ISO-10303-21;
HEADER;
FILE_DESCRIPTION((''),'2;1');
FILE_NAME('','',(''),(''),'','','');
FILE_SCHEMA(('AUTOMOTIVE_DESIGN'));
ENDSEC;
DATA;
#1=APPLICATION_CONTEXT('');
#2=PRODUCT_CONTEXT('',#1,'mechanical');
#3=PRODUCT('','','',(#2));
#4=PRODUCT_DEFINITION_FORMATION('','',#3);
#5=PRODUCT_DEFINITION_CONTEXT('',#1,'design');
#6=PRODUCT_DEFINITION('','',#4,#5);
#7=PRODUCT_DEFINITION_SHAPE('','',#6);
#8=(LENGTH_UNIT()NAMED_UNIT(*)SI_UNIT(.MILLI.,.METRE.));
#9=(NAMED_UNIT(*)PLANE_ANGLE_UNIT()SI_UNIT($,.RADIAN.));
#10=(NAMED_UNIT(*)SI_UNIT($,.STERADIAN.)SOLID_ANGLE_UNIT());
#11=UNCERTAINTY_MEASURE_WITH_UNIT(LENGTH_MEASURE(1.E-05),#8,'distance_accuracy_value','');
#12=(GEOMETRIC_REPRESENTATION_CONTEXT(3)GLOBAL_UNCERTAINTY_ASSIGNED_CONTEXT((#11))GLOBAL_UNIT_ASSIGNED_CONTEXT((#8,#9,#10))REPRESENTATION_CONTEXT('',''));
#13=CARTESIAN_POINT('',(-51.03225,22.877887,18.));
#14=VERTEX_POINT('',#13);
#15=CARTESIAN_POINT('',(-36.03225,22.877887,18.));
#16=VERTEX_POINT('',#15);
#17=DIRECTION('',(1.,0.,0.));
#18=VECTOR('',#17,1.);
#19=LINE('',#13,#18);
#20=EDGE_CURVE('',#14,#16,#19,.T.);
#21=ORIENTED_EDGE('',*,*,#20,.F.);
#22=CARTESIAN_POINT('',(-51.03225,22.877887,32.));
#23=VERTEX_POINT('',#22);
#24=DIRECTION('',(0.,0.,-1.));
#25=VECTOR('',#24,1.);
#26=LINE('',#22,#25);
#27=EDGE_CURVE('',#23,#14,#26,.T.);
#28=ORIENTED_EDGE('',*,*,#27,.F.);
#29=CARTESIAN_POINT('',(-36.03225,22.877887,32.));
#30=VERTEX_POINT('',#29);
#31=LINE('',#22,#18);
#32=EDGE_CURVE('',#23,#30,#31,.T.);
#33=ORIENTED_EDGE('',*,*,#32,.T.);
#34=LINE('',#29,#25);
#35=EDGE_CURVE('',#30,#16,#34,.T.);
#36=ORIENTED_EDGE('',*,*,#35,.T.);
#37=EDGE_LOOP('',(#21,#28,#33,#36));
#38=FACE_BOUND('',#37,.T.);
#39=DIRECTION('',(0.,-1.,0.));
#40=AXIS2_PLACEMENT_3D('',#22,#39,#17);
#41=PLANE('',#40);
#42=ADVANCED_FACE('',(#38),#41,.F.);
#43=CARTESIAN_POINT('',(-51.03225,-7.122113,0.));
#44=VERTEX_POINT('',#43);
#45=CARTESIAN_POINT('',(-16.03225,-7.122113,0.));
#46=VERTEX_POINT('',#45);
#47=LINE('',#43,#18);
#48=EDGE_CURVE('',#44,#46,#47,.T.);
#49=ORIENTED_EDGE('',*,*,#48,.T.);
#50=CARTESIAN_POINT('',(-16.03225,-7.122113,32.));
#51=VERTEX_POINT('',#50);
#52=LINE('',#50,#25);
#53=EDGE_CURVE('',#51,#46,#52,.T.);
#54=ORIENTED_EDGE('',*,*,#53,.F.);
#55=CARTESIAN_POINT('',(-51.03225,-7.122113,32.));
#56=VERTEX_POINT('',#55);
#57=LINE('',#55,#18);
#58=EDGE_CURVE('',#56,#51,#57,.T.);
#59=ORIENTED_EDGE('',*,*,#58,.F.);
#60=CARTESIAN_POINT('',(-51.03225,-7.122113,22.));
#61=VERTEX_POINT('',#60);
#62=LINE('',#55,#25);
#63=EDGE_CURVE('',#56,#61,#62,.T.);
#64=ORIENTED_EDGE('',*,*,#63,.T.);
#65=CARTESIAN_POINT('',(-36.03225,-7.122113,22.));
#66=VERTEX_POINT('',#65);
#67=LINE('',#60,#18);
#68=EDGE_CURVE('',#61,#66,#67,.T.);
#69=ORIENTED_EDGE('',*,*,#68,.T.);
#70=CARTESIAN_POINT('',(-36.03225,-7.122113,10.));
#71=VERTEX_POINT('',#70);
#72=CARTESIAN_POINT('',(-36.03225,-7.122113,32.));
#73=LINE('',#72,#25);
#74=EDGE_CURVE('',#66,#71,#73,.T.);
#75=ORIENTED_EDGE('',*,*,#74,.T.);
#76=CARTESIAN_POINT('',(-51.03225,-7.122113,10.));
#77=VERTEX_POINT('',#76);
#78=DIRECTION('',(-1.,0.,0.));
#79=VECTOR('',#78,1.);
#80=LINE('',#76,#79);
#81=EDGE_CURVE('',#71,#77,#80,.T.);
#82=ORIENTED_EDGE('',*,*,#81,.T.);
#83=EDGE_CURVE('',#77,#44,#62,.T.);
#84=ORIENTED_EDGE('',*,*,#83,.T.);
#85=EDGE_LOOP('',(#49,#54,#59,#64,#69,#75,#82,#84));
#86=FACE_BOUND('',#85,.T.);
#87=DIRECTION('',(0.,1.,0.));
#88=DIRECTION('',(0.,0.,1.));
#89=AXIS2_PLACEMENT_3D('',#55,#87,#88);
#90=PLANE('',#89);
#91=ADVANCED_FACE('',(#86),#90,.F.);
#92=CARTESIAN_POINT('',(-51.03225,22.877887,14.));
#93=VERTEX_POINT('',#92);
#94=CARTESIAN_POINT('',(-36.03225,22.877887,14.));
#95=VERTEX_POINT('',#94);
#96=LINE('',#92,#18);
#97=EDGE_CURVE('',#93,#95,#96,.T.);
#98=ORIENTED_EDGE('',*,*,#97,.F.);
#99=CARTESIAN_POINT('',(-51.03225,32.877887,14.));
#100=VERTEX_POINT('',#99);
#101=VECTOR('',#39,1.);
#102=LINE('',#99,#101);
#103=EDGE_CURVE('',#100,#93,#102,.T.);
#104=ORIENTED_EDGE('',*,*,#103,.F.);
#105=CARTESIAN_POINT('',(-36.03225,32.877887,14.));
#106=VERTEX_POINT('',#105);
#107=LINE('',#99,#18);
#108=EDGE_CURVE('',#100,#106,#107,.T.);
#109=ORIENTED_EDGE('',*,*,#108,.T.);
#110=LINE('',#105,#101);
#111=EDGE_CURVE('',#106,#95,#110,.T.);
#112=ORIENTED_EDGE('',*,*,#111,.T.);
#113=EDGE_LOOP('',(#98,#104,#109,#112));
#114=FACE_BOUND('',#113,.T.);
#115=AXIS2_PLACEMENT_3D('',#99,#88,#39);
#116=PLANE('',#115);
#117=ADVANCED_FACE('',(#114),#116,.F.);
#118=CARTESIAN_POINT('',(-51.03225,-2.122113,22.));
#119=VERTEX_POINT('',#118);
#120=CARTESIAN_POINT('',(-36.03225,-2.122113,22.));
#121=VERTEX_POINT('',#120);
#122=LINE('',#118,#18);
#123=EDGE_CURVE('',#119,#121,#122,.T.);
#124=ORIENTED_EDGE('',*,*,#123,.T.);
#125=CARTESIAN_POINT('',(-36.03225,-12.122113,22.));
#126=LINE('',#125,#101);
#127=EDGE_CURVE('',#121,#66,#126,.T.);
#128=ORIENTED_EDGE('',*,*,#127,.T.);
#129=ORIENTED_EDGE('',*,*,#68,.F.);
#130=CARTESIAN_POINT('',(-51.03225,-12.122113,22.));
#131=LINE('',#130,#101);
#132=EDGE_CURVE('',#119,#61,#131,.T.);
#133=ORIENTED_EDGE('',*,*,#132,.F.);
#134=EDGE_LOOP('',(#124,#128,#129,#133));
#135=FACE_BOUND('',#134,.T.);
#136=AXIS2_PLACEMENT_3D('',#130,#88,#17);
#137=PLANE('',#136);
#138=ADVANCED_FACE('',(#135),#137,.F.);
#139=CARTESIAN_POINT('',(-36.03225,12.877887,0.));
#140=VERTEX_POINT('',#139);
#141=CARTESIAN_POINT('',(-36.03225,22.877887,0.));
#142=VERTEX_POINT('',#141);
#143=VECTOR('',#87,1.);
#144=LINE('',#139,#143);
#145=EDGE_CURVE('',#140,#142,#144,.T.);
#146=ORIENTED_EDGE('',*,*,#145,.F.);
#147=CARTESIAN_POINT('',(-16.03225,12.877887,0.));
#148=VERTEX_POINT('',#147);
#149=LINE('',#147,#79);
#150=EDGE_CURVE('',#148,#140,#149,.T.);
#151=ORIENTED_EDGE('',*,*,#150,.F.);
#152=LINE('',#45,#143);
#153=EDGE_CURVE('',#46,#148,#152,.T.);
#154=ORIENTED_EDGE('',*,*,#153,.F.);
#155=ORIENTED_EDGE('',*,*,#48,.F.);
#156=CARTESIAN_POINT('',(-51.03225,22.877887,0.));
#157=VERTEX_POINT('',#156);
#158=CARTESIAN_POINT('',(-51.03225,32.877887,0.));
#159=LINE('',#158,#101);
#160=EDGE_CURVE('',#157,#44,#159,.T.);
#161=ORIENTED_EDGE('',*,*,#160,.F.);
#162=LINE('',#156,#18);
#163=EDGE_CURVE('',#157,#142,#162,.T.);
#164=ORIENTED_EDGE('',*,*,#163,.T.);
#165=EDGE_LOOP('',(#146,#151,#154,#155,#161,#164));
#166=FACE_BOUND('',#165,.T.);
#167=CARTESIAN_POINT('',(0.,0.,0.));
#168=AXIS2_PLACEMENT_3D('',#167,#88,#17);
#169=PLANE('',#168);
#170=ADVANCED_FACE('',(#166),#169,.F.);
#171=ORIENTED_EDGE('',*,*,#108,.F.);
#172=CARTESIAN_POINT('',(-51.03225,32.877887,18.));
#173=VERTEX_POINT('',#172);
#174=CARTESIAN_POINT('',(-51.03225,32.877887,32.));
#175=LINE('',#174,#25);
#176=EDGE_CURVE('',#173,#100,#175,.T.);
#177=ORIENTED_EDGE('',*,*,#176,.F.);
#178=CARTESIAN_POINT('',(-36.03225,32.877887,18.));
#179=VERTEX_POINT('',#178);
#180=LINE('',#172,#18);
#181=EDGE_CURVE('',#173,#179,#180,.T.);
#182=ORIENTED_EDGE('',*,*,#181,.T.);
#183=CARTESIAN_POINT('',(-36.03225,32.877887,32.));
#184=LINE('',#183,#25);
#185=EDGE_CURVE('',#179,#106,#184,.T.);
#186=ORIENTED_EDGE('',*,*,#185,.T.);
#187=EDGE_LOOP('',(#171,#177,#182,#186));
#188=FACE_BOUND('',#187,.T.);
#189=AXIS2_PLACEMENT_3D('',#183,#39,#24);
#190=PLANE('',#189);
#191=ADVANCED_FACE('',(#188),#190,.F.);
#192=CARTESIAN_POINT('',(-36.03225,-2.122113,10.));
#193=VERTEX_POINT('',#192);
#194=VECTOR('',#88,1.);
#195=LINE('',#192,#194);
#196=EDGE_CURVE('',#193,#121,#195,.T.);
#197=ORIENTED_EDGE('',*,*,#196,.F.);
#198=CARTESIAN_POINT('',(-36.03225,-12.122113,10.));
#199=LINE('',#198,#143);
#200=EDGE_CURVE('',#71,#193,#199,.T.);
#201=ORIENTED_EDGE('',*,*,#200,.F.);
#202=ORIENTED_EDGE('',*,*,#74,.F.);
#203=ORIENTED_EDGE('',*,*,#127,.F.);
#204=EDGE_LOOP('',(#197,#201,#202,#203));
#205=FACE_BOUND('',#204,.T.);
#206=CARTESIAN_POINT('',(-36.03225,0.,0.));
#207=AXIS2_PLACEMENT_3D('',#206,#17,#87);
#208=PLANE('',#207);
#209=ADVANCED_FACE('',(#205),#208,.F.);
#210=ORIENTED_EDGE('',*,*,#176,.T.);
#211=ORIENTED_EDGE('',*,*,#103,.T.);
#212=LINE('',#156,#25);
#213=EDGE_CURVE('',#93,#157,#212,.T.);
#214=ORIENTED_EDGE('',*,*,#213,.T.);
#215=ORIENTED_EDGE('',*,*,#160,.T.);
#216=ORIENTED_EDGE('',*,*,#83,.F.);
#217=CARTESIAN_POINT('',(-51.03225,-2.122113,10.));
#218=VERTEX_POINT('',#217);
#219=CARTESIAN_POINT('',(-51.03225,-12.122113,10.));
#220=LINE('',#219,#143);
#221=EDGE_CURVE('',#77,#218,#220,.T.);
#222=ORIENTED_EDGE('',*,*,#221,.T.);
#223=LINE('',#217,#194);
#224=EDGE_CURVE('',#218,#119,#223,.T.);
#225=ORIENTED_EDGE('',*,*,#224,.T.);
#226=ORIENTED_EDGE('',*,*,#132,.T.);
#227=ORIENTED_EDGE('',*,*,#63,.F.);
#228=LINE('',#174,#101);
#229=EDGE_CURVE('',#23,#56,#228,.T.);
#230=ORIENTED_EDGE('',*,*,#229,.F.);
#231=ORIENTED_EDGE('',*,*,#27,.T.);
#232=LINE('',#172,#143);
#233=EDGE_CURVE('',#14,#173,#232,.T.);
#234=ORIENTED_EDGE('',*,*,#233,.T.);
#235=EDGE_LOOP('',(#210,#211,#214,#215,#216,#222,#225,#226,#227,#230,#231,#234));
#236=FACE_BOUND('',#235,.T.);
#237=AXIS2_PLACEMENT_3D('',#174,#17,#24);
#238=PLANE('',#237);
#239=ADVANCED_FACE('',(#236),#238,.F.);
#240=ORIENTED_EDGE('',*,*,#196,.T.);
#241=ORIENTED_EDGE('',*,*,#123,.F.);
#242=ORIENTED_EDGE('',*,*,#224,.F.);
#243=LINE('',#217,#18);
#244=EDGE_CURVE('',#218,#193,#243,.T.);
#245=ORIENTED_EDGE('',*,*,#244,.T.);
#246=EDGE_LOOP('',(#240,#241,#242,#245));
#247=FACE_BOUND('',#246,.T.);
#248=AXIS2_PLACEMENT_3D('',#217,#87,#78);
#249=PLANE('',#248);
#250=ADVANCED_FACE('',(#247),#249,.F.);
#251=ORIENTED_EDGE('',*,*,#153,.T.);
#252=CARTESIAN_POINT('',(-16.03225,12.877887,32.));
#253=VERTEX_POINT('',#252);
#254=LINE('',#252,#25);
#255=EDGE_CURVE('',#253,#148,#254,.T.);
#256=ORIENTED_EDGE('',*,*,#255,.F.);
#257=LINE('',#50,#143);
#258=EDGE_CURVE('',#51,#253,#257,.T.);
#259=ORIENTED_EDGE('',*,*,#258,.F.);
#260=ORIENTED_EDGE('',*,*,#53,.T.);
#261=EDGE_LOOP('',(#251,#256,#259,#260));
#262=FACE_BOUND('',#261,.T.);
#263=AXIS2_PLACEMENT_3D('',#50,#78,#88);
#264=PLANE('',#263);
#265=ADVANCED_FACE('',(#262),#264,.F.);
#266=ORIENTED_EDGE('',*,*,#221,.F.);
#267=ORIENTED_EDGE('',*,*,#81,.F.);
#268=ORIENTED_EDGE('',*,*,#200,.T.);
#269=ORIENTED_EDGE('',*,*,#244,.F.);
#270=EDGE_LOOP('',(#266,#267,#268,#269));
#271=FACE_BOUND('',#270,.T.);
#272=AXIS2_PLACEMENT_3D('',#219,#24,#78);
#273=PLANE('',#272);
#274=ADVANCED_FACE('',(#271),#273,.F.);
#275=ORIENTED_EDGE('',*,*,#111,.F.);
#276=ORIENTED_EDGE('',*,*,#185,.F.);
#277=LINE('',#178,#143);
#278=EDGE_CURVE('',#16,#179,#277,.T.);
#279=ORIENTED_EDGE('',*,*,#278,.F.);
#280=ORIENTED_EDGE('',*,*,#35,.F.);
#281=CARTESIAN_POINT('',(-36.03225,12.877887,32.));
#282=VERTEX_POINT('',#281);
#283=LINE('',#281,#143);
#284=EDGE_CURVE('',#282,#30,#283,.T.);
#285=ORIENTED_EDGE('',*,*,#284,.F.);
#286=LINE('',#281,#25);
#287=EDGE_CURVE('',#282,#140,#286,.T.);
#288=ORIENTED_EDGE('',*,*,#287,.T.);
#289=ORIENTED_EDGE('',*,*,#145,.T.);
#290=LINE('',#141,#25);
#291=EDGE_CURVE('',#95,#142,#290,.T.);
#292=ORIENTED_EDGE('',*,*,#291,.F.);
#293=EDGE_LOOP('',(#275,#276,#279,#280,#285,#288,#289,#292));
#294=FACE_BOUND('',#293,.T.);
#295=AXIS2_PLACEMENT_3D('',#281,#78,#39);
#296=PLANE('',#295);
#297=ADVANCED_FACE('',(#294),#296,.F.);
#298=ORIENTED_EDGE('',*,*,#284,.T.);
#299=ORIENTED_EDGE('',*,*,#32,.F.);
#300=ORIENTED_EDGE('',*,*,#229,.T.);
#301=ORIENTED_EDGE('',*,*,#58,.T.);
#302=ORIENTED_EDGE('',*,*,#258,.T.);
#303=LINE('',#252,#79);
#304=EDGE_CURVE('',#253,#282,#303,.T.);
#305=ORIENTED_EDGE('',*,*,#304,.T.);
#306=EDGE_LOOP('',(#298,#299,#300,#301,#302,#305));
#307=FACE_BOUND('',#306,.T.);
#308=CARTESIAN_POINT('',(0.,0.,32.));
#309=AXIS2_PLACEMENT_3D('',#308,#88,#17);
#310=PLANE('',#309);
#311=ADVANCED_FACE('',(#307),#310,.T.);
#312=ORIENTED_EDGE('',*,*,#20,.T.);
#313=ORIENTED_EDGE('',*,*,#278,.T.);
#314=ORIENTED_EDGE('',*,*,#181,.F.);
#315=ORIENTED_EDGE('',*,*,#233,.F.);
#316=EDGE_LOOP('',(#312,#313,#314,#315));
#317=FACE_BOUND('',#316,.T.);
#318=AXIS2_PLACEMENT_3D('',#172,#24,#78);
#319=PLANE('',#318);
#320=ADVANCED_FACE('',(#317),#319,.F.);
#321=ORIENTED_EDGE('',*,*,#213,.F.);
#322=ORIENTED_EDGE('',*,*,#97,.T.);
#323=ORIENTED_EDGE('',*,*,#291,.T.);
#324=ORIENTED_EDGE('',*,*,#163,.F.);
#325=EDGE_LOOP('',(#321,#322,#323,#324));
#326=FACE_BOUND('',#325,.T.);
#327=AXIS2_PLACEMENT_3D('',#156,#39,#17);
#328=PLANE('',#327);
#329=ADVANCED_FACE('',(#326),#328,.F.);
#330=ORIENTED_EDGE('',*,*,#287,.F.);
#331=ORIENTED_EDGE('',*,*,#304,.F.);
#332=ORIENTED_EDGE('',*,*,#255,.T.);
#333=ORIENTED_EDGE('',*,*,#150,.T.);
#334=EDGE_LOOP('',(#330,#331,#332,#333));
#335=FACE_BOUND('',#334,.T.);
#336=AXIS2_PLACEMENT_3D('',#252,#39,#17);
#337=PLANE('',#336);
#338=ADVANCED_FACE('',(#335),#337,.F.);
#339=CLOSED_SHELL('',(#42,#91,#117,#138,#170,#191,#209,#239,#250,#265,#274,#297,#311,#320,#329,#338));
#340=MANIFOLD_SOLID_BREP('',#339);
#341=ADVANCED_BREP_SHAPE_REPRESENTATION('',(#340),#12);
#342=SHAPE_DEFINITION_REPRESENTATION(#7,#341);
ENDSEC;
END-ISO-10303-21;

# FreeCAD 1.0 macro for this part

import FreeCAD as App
import Part
import Sketcher

V = App.Vector
Q = App.Units.Quantity


def add_polygon(sketch, points):
    """Adds a closed chain of lines whose ends are joined by coincident constraints."""
    first, n = sketch.GeometryCount, len(points)
    for a, b in zip(points, points[1:] + points[:1]):
        sketch.addGeometry(Part.LineSegment(App.Vector(*a, 0), App.Vector(*b, 0)), False)
    for i in range(n):
        sketch.addConstraint(Sketcher.Constraint("Coincident", first + i, 2, first + (i + 1) % n, 1))

doc = App.newDocument("Part")
body = doc.addObject("PartDesign::Body", "Body")

# Sketch on XY plane
sketch1 = doc.addObject("Sketcher::SketchObject", "Sketch")
body.addObject(sketch1)
sketch1.AttachmentSupport = (doc.XY_Plane, [""])
sketch1.MapMode = "FlatFace"
add_polygon(sketch1, [(-36, 33), (-51, 33), (-51, -7), (-16, -7), (-16, 13), (-36, 13)])  # lines 0-5
sketch1.addConstraint([
    Sketcher.Constraint("Horizontal", 0),
    Sketcher.Constraint("Vertical", 1),
    Sketcher.Constraint("Horizontal", 2),
    Sketcher.Constraint("Vertical", 3),
    Sketcher.Constraint("Horizontal", 4),
    Sketcher.Constraint("Vertical", 5),
    Sketcher.Constraint("Equal", 4, 3),
    Sketcher.Constraint("Equal", 3, 5),
    Sketcher.Constraint("DistanceX", 0, 2, 0, 1, Q("15 mm")),
    Sketcher.Constraint("DistanceX", 2, 1, 2, 2, Q("35 mm")),
    Sketcher.Constraint("DistanceX", 0, 2, -1, 1, Q("51.03225 mm")),
    Sketcher.Constraint("DistanceY", -1, 1, 0, 2, Q("32.877887 mm")),
])
pad1 = doc.addObject("PartDesign::Pad", "Pad")
body.addObject(pad1)
pad1.Profile = sketch1
pad1.Length = 32

# Sketch on YZ plane
sketch2 = doc.addObject("Sketcher::SketchObject", "Sketch001")
body.addObject(sketch2)
sketch2.AttachmentSupport = (doc.YZ_Plane, [""])
sketch2.MapMode = "FlatFace"
sketch2.AttachmentOffset = App.Placement(V(0, 0, -36.03225), App.Rotation())
add_polygon(sketch2, [(33, 14), (23, 14), (23, 0), (33, 0)])  # lines 0-3
add_polygon(sketch2, [(33, 32), (23, 32), (23, 18), (33, 18)])  # lines 4-7
add_polygon(sketch2, [(-2, 22), (-12, 22), (-12, 10), (-2, 10)])  # lines 8-11
sketch2.addConstraint([
    Sketcher.Constraint("Horizontal", 0),
    Sketcher.Constraint("Vertical", 1),
    Sketcher.Constraint("Horizontal", 2),
    Sketcher.Constraint("Vertical", 3),
    Sketcher.Constraint("Horizontal", 4),
    Sketcher.Constraint("Vertical", 5),
    Sketcher.Constraint("Horizontal", 6),
    Sketcher.Constraint("Vertical", 7),
    Sketcher.Constraint("Horizontal", 8),
    Sketcher.Constraint("Vertical", 9),
    Sketcher.Constraint("Horizontal", 10),
    Sketcher.Constraint("Vertical", 11),
    Sketcher.Constraint("PointOnObject", 1, 2, -1),
    Sketcher.Constraint("Vertical", 1, 2, 4, 2),
    Sketcher.Constraint("Vertical", 3, 2, 6, 2),
    Sketcher.Constraint("Equal", 6, 8),
    Sketcher.Constraint("Equal", 3, 5),
    Sketcher.Constraint("DistanceX", 0, 2, 0, 1, Q("10 mm")),
    Sketcher.Constraint("DistanceY", 1, 2, 1, 1, Q("14 mm")),
    Sketcher.Constraint("DistanceY", 9, 2, 9, 1, Q("12 mm")),
    Sketcher.Constraint("DistanceY", -1, 1, 4, 2, Q("32 mm")),
    Sketcher.Constraint("DistanceY", -1, 1, 8, 2, Q("22 mm")),
    Sketcher.Constraint("DistanceX", 8, 2, 5, 2, Q("35 mm")),
    Sketcher.Constraint("DistanceX", -1, 1, 0, 2, Q("22.877887 mm")),
])
pocket1 = doc.addObject("PartDesign::Pocket", "Pocket")
body.addObject(pocket1)
pocket1.Profile = sketch2
pocket1.Type = "ThroughAll"

doc.recompute()
